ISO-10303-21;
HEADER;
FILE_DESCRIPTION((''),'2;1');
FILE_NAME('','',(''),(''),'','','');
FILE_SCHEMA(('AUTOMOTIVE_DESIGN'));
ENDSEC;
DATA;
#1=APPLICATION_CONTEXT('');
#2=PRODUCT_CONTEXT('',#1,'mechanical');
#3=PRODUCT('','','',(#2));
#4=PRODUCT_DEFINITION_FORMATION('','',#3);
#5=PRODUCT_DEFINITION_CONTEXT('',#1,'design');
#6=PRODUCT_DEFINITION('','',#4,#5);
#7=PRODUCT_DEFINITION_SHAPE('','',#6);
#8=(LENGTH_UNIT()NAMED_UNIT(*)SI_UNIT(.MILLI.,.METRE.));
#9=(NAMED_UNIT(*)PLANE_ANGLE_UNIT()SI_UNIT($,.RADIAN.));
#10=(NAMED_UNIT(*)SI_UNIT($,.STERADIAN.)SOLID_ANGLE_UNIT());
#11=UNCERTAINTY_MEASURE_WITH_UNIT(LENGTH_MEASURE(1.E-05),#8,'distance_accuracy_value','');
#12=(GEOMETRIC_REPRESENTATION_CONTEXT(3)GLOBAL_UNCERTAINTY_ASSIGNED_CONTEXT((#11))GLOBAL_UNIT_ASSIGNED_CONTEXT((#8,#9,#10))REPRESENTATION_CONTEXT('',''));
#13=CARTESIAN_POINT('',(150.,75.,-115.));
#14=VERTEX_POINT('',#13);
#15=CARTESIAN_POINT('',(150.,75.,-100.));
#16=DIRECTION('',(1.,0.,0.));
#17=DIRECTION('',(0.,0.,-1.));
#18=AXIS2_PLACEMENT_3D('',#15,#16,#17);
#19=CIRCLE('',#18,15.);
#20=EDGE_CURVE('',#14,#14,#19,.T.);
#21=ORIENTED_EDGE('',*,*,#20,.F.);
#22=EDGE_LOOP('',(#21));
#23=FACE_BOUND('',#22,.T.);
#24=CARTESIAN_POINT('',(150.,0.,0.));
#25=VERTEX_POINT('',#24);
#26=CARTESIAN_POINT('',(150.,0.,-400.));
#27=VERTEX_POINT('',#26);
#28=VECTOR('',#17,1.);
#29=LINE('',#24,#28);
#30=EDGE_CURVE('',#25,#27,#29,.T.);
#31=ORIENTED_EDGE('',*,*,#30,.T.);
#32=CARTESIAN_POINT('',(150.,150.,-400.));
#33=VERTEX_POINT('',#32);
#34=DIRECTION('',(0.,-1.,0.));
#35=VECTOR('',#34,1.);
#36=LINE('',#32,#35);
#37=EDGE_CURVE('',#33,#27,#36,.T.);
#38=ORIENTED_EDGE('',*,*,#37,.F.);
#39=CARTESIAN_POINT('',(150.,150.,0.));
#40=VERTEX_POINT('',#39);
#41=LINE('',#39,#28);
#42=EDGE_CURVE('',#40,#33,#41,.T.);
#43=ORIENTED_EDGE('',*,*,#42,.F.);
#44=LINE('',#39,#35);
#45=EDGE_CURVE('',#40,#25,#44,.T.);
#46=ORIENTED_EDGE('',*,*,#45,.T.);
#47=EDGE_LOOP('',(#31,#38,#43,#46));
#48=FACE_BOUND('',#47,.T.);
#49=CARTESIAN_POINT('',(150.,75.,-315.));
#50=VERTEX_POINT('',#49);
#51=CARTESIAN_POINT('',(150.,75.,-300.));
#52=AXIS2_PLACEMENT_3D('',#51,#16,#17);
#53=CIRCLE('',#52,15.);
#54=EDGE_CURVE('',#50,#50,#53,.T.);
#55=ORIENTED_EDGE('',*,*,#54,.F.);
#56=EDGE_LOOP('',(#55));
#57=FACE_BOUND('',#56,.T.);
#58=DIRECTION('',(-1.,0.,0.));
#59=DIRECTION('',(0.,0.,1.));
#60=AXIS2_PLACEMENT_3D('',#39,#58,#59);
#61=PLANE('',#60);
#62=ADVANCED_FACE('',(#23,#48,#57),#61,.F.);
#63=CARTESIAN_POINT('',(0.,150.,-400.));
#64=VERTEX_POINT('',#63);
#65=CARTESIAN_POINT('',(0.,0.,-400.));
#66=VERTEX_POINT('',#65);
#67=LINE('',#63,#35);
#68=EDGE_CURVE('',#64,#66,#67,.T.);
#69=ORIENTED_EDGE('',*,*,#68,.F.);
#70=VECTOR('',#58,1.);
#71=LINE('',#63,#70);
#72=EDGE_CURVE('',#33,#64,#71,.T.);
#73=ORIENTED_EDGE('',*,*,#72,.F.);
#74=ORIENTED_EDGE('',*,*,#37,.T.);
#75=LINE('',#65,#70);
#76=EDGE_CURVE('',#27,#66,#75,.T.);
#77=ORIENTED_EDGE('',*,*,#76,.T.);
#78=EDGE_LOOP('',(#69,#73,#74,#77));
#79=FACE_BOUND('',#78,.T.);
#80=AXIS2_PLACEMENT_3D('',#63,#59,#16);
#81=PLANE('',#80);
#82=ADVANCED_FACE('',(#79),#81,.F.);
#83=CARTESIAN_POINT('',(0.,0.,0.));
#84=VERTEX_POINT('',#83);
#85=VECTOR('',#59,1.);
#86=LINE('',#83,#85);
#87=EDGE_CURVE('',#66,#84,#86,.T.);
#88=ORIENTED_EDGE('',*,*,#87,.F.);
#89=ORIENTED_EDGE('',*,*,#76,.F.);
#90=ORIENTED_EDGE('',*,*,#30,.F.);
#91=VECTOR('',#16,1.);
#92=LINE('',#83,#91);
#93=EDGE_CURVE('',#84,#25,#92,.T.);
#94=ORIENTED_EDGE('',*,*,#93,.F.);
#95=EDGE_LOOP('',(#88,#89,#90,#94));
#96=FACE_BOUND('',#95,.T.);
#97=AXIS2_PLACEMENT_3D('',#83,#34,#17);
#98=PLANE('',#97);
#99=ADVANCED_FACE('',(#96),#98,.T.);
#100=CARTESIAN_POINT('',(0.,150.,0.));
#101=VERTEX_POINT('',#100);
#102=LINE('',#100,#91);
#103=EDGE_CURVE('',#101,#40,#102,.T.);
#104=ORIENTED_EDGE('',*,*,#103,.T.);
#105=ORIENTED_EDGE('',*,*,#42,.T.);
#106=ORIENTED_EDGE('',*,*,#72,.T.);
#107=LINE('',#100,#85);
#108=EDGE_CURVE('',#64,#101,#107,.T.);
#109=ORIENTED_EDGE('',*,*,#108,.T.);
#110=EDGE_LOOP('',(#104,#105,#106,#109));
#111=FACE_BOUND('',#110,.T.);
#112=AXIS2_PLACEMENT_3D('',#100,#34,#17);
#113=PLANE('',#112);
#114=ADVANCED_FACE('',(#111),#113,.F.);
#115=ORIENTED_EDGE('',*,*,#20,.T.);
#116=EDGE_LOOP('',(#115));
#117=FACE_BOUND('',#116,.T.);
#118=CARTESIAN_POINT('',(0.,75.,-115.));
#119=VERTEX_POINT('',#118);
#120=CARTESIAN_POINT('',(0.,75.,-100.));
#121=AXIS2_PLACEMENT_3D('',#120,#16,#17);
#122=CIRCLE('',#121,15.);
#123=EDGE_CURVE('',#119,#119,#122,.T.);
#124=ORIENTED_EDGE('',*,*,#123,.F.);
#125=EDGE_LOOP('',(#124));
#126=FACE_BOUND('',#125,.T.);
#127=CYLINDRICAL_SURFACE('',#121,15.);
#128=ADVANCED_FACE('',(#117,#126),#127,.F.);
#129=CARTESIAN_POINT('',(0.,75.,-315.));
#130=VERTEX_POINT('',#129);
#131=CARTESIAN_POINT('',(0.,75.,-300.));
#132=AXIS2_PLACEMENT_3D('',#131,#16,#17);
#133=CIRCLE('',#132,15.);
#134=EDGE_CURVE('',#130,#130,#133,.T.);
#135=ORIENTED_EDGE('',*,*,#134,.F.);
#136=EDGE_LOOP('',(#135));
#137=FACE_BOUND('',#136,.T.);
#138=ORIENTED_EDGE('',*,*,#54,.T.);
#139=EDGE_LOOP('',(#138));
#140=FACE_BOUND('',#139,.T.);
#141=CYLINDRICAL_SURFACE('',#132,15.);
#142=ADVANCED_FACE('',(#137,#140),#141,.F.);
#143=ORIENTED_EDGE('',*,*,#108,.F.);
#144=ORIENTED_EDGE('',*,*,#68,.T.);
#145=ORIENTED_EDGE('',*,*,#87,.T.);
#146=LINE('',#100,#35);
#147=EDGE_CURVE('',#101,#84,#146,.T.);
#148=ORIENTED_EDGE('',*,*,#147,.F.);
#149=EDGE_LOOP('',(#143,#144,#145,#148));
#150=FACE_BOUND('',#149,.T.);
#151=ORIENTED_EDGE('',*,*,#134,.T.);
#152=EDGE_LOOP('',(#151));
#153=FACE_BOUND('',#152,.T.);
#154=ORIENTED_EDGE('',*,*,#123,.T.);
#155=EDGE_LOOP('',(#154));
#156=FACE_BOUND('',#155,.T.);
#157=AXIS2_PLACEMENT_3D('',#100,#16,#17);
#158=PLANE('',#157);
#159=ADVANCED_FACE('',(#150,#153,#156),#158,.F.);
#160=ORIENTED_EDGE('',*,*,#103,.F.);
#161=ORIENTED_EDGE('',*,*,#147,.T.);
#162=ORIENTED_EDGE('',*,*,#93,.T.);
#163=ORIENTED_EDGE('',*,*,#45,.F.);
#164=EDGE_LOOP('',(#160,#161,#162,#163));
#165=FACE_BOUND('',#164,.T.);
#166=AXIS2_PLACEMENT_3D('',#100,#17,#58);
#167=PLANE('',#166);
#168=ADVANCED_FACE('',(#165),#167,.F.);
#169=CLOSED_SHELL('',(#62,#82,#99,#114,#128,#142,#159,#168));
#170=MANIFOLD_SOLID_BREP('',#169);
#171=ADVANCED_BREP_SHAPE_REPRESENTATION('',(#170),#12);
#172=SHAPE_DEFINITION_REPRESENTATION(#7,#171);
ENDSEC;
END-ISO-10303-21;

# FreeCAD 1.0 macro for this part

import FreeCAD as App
import Part
import Sketcher

doc = App.newDocument("Part")
body = doc.addObject("PartDesign::Body", "Body")

# Sketch on XZ plane
sketch1 = body.newObject("Sketcher::SketchObject", "Sketch")
sketch1.AttachmentSupport = (doc.getObject("XZ_Plane"), [""])
sketch1.MapMode = "FlatFace"
sketch1.addGeometry([
    Part.LineSegment(App.Vector(0, -400, 0), App.Vector(0, 0, 0)),
    Part.LineSegment(App.Vector(0, 0, 0), App.Vector(150, 0, 0)),
    Part.LineSegment(App.Vector(150, 0, 0), App.Vector(150, -400, 0)),
    Part.LineSegment(App.Vector(150, -400, 0), App.Vector(0, -400, 0)),
], False)
sketch1.addConstraint([
    Sketcher.Constraint("Coincident", 0, 2, 1, 1),
    Sketcher.Constraint("Coincident", 1, 2, 2, 1),
    Sketcher.Constraint("Coincident", 2, 2, 3, 1),
    Sketcher.Constraint("Coincident", 3, 2, 0, 1),
    Sketcher.Constraint("Vertical", 0),
    Sketcher.Constraint("Horizontal", 1),
    Sketcher.Constraint("Vertical", 2),
    Sketcher.Constraint("Horizontal", 3),
    Sketcher.Constraint("Coincident", 0, 2, -1, 1),
    Sketcher.Constraint("DistanceX", 1, 1, 1, 2, 150.0),
    Sketcher.Constraint("DistanceY", 0, 1, 0, 2, 400.0),
])
pad1 = body.newObject("PartDesign::Pad", "Pad")
pad1.Profile = sketch1
pad1.Length = 150
pad1.Reversed = True

# Sketch on YZ plane
sketch2 = body.newObject("Sketcher::SketchObject", "Sketch001")
sketch2.AttachmentSupport = (doc.getObject("YZ_Plane"), [""])
sketch2.MapMode = "FlatFace"
sketch2.AttachmentOffset = App.Placement(App.Vector(0, 0, 150), App.Rotation())
sketch2.addGeometry([
    Part.Circle(App.Vector(75, -300, 0), App.Vector(0, 0, 1), 15),
    Part.Circle(App.Vector(75, -100, 0), App.Vector(0, 0, 1), 15),
], False)
sketch2.addConstraint([
    Sketcher.Constraint("Equal", 0, 1),
    Sketcher.Constraint("Vertical", 0, 3, 1, 3),
    Sketcher.Constraint("Diameter", 0, 30.0),
    Sketcher.Constraint("DistanceX", -1, 1, 0, 3, 75.0),
    Sketcher.Constraint("DistanceY", 0, 3, -1, 1, 300.0),
    Sketcher.Constraint("DistanceY", 1, 3, -1, 1, 100.0),
])
pocket1 = body.newObject("PartDesign::Pocket", "Pocket")
pocket1.Profile = sketch2
pocket1.Type = "ThroughAll"

doc.recompute()
